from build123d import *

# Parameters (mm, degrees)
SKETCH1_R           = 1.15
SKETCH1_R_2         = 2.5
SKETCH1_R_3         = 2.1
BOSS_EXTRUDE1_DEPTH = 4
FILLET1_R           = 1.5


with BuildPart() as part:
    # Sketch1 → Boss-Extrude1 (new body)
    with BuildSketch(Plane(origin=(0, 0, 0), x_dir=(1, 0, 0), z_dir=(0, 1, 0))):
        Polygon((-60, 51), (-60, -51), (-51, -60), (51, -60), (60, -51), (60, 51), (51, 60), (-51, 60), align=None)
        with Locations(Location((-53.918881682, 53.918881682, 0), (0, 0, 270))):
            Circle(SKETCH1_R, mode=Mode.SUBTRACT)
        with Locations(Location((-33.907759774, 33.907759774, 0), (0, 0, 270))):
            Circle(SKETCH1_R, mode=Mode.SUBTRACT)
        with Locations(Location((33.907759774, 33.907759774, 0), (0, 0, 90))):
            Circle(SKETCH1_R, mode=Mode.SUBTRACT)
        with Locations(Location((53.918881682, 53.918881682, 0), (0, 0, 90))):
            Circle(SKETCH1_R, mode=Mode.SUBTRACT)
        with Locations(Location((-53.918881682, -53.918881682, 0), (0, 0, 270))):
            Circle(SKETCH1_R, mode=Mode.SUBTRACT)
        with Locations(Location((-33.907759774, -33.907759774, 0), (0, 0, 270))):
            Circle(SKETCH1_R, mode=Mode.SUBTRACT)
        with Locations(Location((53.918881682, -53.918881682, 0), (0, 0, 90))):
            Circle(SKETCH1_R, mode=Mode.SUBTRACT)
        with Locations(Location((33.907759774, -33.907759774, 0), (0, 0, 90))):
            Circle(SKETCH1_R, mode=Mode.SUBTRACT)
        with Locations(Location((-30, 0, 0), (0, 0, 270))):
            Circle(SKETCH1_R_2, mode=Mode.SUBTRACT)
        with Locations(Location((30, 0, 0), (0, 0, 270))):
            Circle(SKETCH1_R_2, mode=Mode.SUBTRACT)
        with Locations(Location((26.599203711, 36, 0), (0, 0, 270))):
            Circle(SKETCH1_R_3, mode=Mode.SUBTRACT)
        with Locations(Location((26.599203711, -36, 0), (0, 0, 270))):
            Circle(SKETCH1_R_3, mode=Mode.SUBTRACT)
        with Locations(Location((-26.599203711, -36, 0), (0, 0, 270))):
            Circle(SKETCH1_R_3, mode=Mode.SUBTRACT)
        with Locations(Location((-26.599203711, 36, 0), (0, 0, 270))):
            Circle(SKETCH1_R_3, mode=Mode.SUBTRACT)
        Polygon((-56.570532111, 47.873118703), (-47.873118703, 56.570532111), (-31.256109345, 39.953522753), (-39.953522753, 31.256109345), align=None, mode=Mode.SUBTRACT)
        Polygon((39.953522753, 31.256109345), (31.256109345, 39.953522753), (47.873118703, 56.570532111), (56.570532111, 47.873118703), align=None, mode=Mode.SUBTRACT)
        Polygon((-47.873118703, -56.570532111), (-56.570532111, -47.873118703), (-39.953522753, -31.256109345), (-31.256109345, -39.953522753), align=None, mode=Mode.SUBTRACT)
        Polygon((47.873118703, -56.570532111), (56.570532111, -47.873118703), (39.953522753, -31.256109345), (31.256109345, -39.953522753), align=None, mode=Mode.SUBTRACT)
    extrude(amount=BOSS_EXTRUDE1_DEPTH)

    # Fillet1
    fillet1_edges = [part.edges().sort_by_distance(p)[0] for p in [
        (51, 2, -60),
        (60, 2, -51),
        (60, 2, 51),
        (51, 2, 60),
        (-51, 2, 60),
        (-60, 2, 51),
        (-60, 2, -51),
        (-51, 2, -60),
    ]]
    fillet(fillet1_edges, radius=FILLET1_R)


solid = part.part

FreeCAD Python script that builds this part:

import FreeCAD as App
import Part
import Sketcher

V = App.Vector
Q = App.Units.Quantity


def edges_at(feature, points):
    """Names of the edges that pass closest to the given points."""
    edges = feature.Shape.Edges
    near = lambda p: min(range(len(edges)), key=lambda i: edges[i].distToShape(Part.Vertex(*p))[0])
    return sorted({f"Edge{near(p) + 1}" for p in points})


def add_polygon(sketch, points):
    """Adds a closed chain of lines whose ends are joined by coincident constraints."""
    first, n = sketch.GeometryCount, len(points)
    for a, b in zip(points, points[1:] + points[:1]):
        sketch.addGeometry(Part.LineSegment(App.Vector(*a, 0), App.Vector(*b, 0)), False)
    for i in range(n):
        sketch.addConstraint(Sketcher.Constraint("Coincident", first + i, 2, first + (i + 1) % n, 1))

doc = App.newDocument("Part")
body = doc.addObject("PartDesign::Body", "Body")

# Sketch on XZ plane
sketch1 = body.newObject("Sketcher::SketchObject", "Sketch")
sketch1.AttachmentSupport = (doc.getObject("XZ_Plane"), [""])
sketch1.MapMode = "FlatFace"
add_polygon(sketch1, [(-60, -51), (-60, 51), (-51, 60), (51, 60), (60, 51), (60, -51), (51, -60), (-51, -60)])  # lines 0-7
sketch1.addGeometry(Part.Circle(V(-53.9, 53.9, 0), V(0, 0, 1), 1.1), False)  # 8
add_polygon(sketch1, [(-31.3, 40), (-47.9, 56.6), (-56.6, 47.9), (-40, 31.3)])  # lines 9-12
sketch1.addGeometry(Part.Circle(V(-33.9, 33.9, 0), V(0, 0, 1), 1.1), False)  # 13
sketch1.addGeometry(Part.Circle(V(-26.6, 36, 0), V(0, 0, 1), 2.1), False)  # 14
sketch1.addGeometry(Part.Circle(V(26.6, 36, 0), V(0, 0, 1), 2.1), False)  # 15
sketch1.addGeometry(Part.Circle(V(53.9, 53.9, 0), V(0, 0, 1), 1.1), False)  # 16
add_polygon(sketch1, [(56.6, 47.9), (47.9, 56.6), (31.3, 40), (40, 31.3)])  # lines 17-20
sketch1.addGeometry(Part.Circle(V(33.9, 33.9, 0), V(0, 0, 1), 1.1), False)  # 21
sketch1.addGeometry(Part.Circle(V(-30, 0, 0), V(0, 0, 1), 2.5), False)  # 22
sketch1.addGeometry(Part.Circle(V(-33.9, -33.9, 0), V(0, 0, 1), 1.1), False)  # 23
add_polygon(sketch1, [(-40, -31.3), (-56.6, -47.9), (-47.9, -56.6), (-31.3, -40)])  # lines 24-27
sketch1.addGeometry(Part.Circle(V(-53.9, -53.9, 0), V(0, 0, 1), 1.1), False)  # 28
sketch1.addGeometry(Part.Circle(V(-26.6, -36, 0), V(0, 0, 1), 2.1), False)  # 29
sketch1.addGeometry(Part.Circle(V(30, 0, 0), V(0, 0, 1), 2.5), False)  # 30
sketch1.addGeometry(Part.Circle(V(26.6, -36, 0), V(0, 0, 1), 2.1), False)  # 31
sketch1.addGeometry(Part.Circle(V(33.9, -33.9, 0), V(0, 0, 1), 1.1), False)  # 32
add_polygon(sketch1, [(56.6, -47.9), (40, -31.3), (31.3, -40), (47.9, -56.6)])  # lines 33-36
sketch1.addGeometry(Part.Circle(V(53.9, -53.9, 0), V(0, 0, 1), 1.1), False)  # 37
sketch1.addConstraint([
    Sketcher.Constraint("Vertical", 0),
    Sketcher.Constraint("Horizontal", 2),
    Sketcher.Constraint("Vertical", 4),
    Sketcher.Constraint("Horizontal", 6),
    Sketcher.Constraint("Equal", 8, 13),
    Sketcher.Constraint("Equal", 14, 15),
    Sketcher.Constraint("Equal", 13, 16),
    Sketcher.Constraint("Equal", 16, 21),
    Sketcher.Constraint("Equal", 21, 23),
    Sketcher.Constraint("Equal", 23, 28),
    Sketcher.Constraint("Equal", 15, 29),
    Sketcher.Constraint("Equal", 22, 30),
    Sketcher.Constraint("Equal", 29, 31),
    Sketcher.Constraint("Equal", 28, 32),
    Sketcher.Constraint("Equal", 32, 37),
    Sketcher.Constraint("Symmetric", 21, 3, 23, 3, -1, 1),
    Sketcher.Constraint("Symmetric", 16, 3, 28, 3, -1, 1),
    Sketcher.Constraint("Symmetric", 15, 3, 29, 3, -1, 1),
    Sketcher.Constraint("Symmetric", 22, 3, 30, 3, -1, 1),
    Sketcher.Constraint("Symmetric", 14, 3, 31, 3, -1, 1),
    Sketcher.Constraint("Symmetric", 13, 3, 32, 3, -1, 1),
    Sketcher.Constraint("Symmetric", 8, 3, 37, 3, -1, 1),
    Sketcher.Constraint("Symmetric", 0, 2, 4, 2, -1, 1),
    Sketcher.Constraint("Symmetric", 1, 2, 5, 2, -1, 1),
    Sketcher.Constraint("Symmetric", 20, 2, 24, 2, -1, 1),
    Sketcher.Constraint("Symmetric", 17, 2, 25, 2, -1, 1),
    Sketcher.Constraint("Symmetric", 18, 2, 26, 2, -1, 1),
    Sketcher.Constraint("Symmetric", 19, 2, 27, 2, -1, 1),
    Sketcher.Constraint("Symmetric", 11, 2, 33, 2, -1, 1),
    Sketcher.Constraint("Symmetric", 12, 2, 34, 2, -1, 1),
    Sketcher.Constraint("Symmetric", 9, 2, 35, 2, -1, 1),
    Sketcher.Constraint("Symmetric", 10, 2, 36, 2, -1, 1),
    Sketcher.Constraint("Symmetric", 14, 3, 15, 3, -2),
    Sketcher.Constraint("Symmetric", 8, 3, 16, 3, -2),
    Sketcher.Constraint("Symmetric", 13, 3, 21, 3, -2),
    Sketcher.Constraint("Symmetric", 9, 2, 17, 2, -2),
    Sketcher.Constraint("Symmetric", 12, 2, 18, 2, -2),
    Sketcher.Constraint("Symmetric", 11, 2, 19, 2, -2),
    Sketcher.Constraint("Symmetric", 10, 2, 20, 2, -2),
    Sketcher.Constraint("PointOnObject", 22, 3, -1),
    Sketcher.Constraint("Perpendicular", 1, 3),
    Sketcher.Constraint("Perpendicular", 5, 7),
    Sketcher.Constraint("Parallel", 7, 9),
    Sketcher.Constraint("Perpendicular", 9, 10),
    Sketcher.Constraint("Perpendicular", 10, 11),
    Sketcher.Constraint("Perpendicular", 11, 12),
    Sketcher.Constraint("Perpendicular", 12, 17),
    Sketcher.Constraint("Horizontal", 0, 2, 3, 2),
    Sketcher.Constraint("Horizontal", 4, 2, 7, 2),
    Sketcher.Constraint("Equal", 6, 0),
    Sketcher.Constraint("Diameter", 22, Q("5 mm")),
    Sketcher.Constraint("Diameter", 8, Q("2.3 mm")),
    Sketcher.Constraint("Diameter", 14, Q("4.2 mm")),
    Sketcher.Constraint("DistanceX", 2, 1, 2, 2, Q("102 mm")),
    Sketcher.Constraint("DistanceY", -1, 1, 14, 3, Q("36 mm")),
    Sketcher.Constraint("DistanceX", 22, 3, -1, 1, Q("30 mm")),
    Sketcher.Constraint("DistanceX", 0, 2, -1, 1, Q("60 mm")),
    Sketcher.Constraint("Distance", 9, Q("23.5 mm")),
    Sketcher.Constraint("Distance", 10, Q("12.3 mm")),
    Sketcher.Constraint("DistanceX", 8, 3, -1, 1, Q("53.918882 mm")),
    Sketcher.Constraint("DistanceY", -1, 1, 8, 3, Q("53.918882 mm")),
    Sketcher.Constraint("DistanceX", 13, 3, -1, 1, Q("33.90776 mm")),
    Sketcher.Constraint("DistanceY", -1, 1, 13, 3, Q("33.90776 mm")),
    Sketcher.Constraint("DistanceX", 9, 2, -1, 1, Q("47.873119 mm")),
    Sketcher.Constraint("DistanceY", -1, 1, 10, 2, Q("47.873119 mm")),
    Sketcher.Constraint("DistanceX", 11, 2, 14, 3, Q("13.354319 mm")),
])
pad1 = body.newObject("PartDesign::Pad", "Pad")
pad1.Profile = sketch1
pad1.Length = 4
pad1.Reversed = True
doc.recompute()

fillet = body.newObject("PartDesign::Fillet", "Fillet")
fillet.Base = (pad1, edges_at(pad1, [
    (51, 2, -60),
    (60, 2, -51),
    (60, 2, 51),
    (51, 2, 60),
    (-51, 2, 60),
    (-60, 2, 51),
    (-60, 2, -51),
    (-51, 2, -60),
]))
fillet.Radius = 1.5

doc.recompute()
